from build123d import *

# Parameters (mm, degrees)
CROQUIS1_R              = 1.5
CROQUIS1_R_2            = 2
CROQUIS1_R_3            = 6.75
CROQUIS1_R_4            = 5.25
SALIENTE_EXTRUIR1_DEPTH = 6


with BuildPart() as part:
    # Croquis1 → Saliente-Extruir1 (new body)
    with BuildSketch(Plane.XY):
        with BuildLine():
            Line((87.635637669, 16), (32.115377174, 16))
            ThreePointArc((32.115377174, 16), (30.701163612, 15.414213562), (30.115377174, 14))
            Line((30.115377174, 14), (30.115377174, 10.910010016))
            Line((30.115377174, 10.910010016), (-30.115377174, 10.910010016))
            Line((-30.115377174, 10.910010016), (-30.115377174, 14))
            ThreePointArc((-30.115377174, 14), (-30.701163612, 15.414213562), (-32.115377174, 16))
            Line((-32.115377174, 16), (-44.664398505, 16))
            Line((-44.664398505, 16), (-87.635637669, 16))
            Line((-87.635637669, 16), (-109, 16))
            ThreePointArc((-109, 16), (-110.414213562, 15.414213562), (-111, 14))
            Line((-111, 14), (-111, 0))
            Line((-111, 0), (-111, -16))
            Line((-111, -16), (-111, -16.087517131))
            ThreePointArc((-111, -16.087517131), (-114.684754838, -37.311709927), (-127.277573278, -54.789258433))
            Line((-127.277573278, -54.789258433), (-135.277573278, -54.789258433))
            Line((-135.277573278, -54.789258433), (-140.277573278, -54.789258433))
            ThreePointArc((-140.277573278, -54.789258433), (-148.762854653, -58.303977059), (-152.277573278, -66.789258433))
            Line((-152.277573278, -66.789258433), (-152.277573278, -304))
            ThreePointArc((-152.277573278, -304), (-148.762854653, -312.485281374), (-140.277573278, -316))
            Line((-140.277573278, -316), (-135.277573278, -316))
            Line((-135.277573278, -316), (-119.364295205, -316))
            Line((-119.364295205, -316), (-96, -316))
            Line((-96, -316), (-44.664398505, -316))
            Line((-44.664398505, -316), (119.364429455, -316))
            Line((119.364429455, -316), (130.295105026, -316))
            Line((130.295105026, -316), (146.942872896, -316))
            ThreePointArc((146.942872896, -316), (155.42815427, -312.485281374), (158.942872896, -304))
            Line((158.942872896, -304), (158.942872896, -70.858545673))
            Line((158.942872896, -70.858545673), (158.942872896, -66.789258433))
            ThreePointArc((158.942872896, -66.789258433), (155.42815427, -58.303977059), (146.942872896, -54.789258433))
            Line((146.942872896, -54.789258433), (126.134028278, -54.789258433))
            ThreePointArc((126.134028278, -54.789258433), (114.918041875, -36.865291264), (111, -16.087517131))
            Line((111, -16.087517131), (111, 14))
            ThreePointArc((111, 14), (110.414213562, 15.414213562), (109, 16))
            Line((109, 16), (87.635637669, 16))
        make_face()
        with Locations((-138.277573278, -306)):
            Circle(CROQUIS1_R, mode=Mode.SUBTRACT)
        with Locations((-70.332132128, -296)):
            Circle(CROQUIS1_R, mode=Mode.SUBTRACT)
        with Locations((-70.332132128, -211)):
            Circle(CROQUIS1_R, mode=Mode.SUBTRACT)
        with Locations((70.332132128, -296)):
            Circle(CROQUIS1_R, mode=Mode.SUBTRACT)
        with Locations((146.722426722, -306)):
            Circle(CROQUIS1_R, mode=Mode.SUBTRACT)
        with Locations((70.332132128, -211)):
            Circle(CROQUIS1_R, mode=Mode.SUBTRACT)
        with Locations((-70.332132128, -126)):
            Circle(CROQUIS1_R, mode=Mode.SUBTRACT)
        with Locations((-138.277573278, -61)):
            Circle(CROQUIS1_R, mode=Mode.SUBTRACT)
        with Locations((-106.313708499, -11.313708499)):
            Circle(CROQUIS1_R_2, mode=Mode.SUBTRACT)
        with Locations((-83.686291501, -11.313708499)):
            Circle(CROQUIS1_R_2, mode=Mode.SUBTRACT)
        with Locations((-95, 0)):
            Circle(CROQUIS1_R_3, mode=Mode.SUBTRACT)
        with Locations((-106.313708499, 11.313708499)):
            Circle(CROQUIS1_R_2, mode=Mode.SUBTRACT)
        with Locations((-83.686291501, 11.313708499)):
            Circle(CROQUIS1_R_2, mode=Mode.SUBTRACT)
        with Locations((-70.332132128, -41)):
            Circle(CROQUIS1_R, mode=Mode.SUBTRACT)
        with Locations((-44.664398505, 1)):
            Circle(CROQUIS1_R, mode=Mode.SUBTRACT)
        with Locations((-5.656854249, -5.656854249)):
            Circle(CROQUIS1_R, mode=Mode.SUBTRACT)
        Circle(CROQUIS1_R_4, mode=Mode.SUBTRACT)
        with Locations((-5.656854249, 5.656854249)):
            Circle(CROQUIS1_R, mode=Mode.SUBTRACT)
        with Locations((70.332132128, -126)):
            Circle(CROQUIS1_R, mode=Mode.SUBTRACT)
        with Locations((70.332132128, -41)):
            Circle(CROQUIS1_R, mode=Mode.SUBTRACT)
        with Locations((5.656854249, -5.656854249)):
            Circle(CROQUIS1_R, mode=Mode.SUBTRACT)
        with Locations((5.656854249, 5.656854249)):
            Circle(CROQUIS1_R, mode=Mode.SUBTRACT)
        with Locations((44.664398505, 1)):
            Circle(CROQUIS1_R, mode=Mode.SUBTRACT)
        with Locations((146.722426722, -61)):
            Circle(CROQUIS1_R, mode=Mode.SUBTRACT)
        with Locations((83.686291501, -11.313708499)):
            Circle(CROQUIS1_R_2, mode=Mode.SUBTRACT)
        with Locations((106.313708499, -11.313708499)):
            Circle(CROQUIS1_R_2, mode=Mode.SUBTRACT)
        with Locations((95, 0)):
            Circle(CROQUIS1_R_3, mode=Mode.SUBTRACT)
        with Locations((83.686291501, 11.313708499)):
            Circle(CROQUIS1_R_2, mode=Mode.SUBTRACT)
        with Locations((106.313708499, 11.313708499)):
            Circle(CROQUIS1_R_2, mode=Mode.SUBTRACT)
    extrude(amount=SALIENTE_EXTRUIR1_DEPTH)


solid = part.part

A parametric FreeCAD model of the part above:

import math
import FreeCAD as App
import Part
import Sketcher
from FreeCAD import Vector

doc = App.newDocument("Part")
body = doc.addObject("PartDesign::Body", "Body")

sketch1 = doc.addObject("Sketcher::SketchObject", "Sketch")
body.addObject(sketch1)
sketch1.AttachmentSupport = (doc.XY_Plane, [""])
sketch1.MapMode = "FlatFace"
sketch1.addGeometry(Part.ArcOfCircle(Part.Circle(Vector(32.1, 14, 0), Vector(0, 0, 1), 2), math.radians(90), math.radians(180)), False)
sketch1.addGeometry(Part.LineSegment(Vector(30.1, 14, 0), Vector(30.1, 10.9, 0)), False)
sketch1.addGeometry(Part.LineSegment(Vector(30.1, 10.9, 0), Vector(-30.1, 10.9, 0)), False)
sketch1.addGeometry(Part.LineSegment(Vector(-30.1, 10.9, 0), Vector(-30.1, 14, 0)), False)
sketch1.addGeometry(Part.ArcOfCircle(Part.Circle(Vector(-32.1, 14, 0), Vector(0, 0, 1), 2), math.radians(0), math.radians(90)), False)
sketch1.addGeometry(Part.LineSegment(Vector(-32.1, 16, 0), Vector(-109, 16, 0)), False)
sketch1.addGeometry(Part.ArcOfCircle(Part.Circle(Vector(-109, 14, 0), Vector(0, 0, 1), 2), math.radians(90), math.radians(180)), False)
sketch1.addGeometry(Part.LineSegment(Vector(-111, 14, 0), Vector(-111, -16.1, 0)), False)
sketch1.addGeometry(Part.ArcOfCircle(Part.Circle(Vector(-158.9, -18.7, 0), Vector(0, 0, 1), 48), math.radians(-49), math.radians(3)), False)
sketch1.addGeometry(Part.LineSegment(Vector(-127.3, -54.8, 0), Vector(-140.3, -54.8, 0)), False)
sketch1.addGeometry(Part.ArcOfCircle(Part.Circle(Vector(-140.3, -66.8, 0), Vector(0, 0, 1), 12), math.radians(90), math.radians(180)), False)
sketch1.addGeometry(Part.LineSegment(Vector(-152.3, -66.8, 0), Vector(-152.3, -304, 0)), False)
sketch1.addGeometry(Part.ArcOfCircle(Part.Circle(Vector(-140.3, -304, 0), Vector(0, 0, 1), 12), math.radians(180), math.radians(270)), False)
sketch1.addGeometry(Part.LineSegment(Vector(-140.3, -316, 0), Vector(146.9, -316, 0)), False)
sketch1.addGeometry(Part.ArcOfCircle(Part.Circle(Vector(146.9, -304, 0), Vector(0, 0, 1), 12), math.radians(-90), math.radians(0)), False)
sketch1.addGeometry(Part.LineSegment(Vector(158.9, -304, 0), Vector(158.9, -66.8, 0)), False)
sketch1.addGeometry(Part.ArcOfCircle(Part.Circle(Vector(146.9, -66.8, 0), Vector(0, 0, 1), 12), math.radians(0), math.radians(90)), False)
sketch1.addGeometry(Part.LineSegment(Vector(146.9, -54.8, 0), Vector(126.1, -54.8, 0)), False)
sketch1.addGeometry(Part.ArcOfCircle(Part.Circle(Vector(168.1, -16.1, 0), Vector(0, 0, 1), 57.1), math.radians(-180), math.radians(-137)), False)
sketch1.addGeometry(Part.LineSegment(Vector(111, -16.1, 0), Vector(111, 14, 0)), False)
sketch1.addGeometry(Part.ArcOfCircle(Part.Circle(Vector(109, 14, 0), Vector(0, 0, 1), 2), math.radians(0), math.radians(90)), False)
sketch1.addGeometry(Part.LineSegment(Vector(109, 16, 0), Vector(32.1, 16, 0)), False)
sketch1.addGeometry(Part.Circle(Vector(-138.3, -306, 0), Vector(0, 0, 1), 1.5), False)
sketch1.addGeometry(Part.Circle(Vector(-70.3, -296, 0), Vector(0, 0, 1), 1.5), False)
sketch1.addGeometry(Part.Circle(Vector(-70.3, -211, 0), Vector(0, 0, 1), 1.5), False)
sketch1.addGeometry(Part.Circle(Vector(70.3, -296, 0), Vector(0, 0, 1), 1.5), False)
sketch1.addGeometry(Part.Circle(Vector(146.7, -306, 0), Vector(0, 0, 1), 1.5), False)
sketch1.addGeometry(Part.Circle(Vector(70.3, -211, 0), Vector(0, 0, 1), 1.5), False)
sketch1.addGeometry(Part.Circle(Vector(-70.3, -126, 0), Vector(0, 0, 1), 1.5), False)
sketch1.addGeometry(Part.Circle(Vector(-138.3, -61, 0), Vector(0, 0, 1), 1.5), False)
sketch1.addGeometry(Part.Circle(Vector(-70.3, -41, 0), Vector(0, 0, 1), 1.5), False)
sketch1.addGeometry(Part.Circle(Vector(-106.3, -11.3, 0), Vector(0, 0, 1), 2), False)
sketch1.addGeometry(Part.Circle(Vector(-106.3, 11.3, 0), Vector(0, 0, 1), 2), False)
sketch1.addGeometry(Part.Circle(Vector(-83.7, -11.3, 0), Vector(0, 0, 1), 2), False)
sketch1.addGeometry(Part.Circle(Vector(-95, 0, 0), Vector(0, 0, 1), 6.8), False)
sketch1.addGeometry(Part.Circle(Vector(-83.7, 11.3, 0), Vector(0, 0, 1), 2), False)
sketch1.addGeometry(Part.Circle(Vector(-44.7, 1, 0), Vector(0, 0, 1), 1.5), False)
sketch1.addGeometry(Part.Circle(Vector(-5.7, -5.7, 0), Vector(0, 0, 1), 1.5), False)
sketch1.addGeometry(Part.Circle(Vector(0, 0, 0), Vector(0, 0, 1), 5.2), False)
sketch1.addGeometry(Part.Circle(Vector(-5.7, 5.7, 0), Vector(0, 0, 1), 1.5), False)
sketch1.addGeometry(Part.Circle(Vector(70.3, -126, 0), Vector(0, 0, 1), 1.5), False)
sketch1.addGeometry(Part.Circle(Vector(70.3, -41, 0), Vector(0, 0, 1), 1.5), False)
sketch1.addGeometry(Part.Circle(Vector(5.7, -5.7, 0), Vector(0, 0, 1), 1.5), False)
sketch1.addGeometry(Part.Circle(Vector(5.7, 5.7, 0), Vector(0, 0, 1), 1.5), False)
sketch1.addGeometry(Part.Circle(Vector(44.7, 1, 0), Vector(0, 0, 1), 1.5), False)
sketch1.addGeometry(Part.Circle(Vector(146.7, -61, 0), Vector(0, 0, 1), 1.5), False)
sketch1.addGeometry(Part.Circle(Vector(83.7, -11.3, 0), Vector(0, 0, 1), 2), False)
sketch1.addGeometry(Part.Circle(Vector(106.3, -11.3, 0), Vector(0, 0, 1), 2), False)
sketch1.addGeometry(Part.Circle(Vector(83.7, 11.3, 0), Vector(0, 0, 1), 2), False)
sketch1.addGeometry(Part.Circle(Vector(95, 0, 0), Vector(0, 0, 1), 6.8), False)
sketch1.addGeometry(Part.Circle(Vector(106.3, 11.3, 0), Vector(0, 0, 1), 2), False)
sketch1.addConstraint(Sketcher.Constraint("Tangent", 0, 2, 1, 1))
sketch1.addConstraint(Sketcher.Constraint("Coincident", 1, 2, 2, 1))
sketch1.addConstraint(Sketcher.Constraint("Coincident", 2, 2, 3, 1))
sketch1.addConstraint(Sketcher.Constraint("Tangent", 3, 2, 4, 1))
sketch1.addConstraint(Sketcher.Constraint("Tangent", 4, 2, 5, 1))
sketch1.addConstraint(Sketcher.Constraint("Tangent", 5, 2, 6, 1))
sketch1.addConstraint(Sketcher.Constraint("Tangent", 6, 2, 7, 1))
sketch1.addConstraint(Sketcher.Constraint("Coincident", 7, 2, 8, 2))
sketch1.addConstraint(Sketcher.Constraint("Coincident", 8, 1, 9, 1))
sketch1.addConstraint(Sketcher.Constraint("Tangent", 9, 2, 10, 1))
sketch1.addConstraint(Sketcher.Constraint("Tangent", 10, 2, 11, 1))
sketch1.addConstraint(Sketcher.Constraint("Tangent", 11, 2, 12, 1))
sketch1.addConstraint(Sketcher.Constraint("Tangent", 12, 2, 13, 1))
sketch1.addConstraint(Sketcher.Constraint("Tangent", 13, 2, 14, 1))
sketch1.addConstraint(Sketcher.Constraint("Tangent", 14, 2, 15, 1))
sketch1.addConstraint(Sketcher.Constraint("Tangent", 15, 2, 16, 1))
sketch1.addConstraint(Sketcher.Constraint("Tangent", 16, 2, 17, 1))
sketch1.addConstraint(Sketcher.Constraint("Coincident", 17, 2, 18, 2))
sketch1.addConstraint(Sketcher.Constraint("Tangent", 18, 1, 19, 1))
sketch1.addConstraint(Sketcher.Constraint("Tangent", 19, 2, 20, 1))
sketch1.addConstraint(Sketcher.Constraint("Tangent", 20, 2, 21, 1))
sketch1.addConstraint(Sketcher.Constraint("Tangent", 21, 2, 0, 1))
sketch1.addConstraint(Sketcher.Constraint("Vertical", 1))
sketch1.addConstraint(Sketcher.Constraint("Horizontal", 2))
sketch1.addConstraint(Sketcher.Constraint("Vertical", 3))
sketch1.addConstraint(Sketcher.Constraint("Horizontal", 5))
sketch1.addConstraint(Sketcher.Constraint("Vertical", 7))
sketch1.addConstraint(Sketcher.Constraint("Horizontal", 9))
sketch1.addConstraint(Sketcher.Constraint("Vertical", 11))
sketch1.addConstraint(Sketcher.Constraint("Horizontal", 13))
sketch1.addConstraint(Sketcher.Constraint("Vertical", 15))
sketch1.addConstraint(Sketcher.Constraint("Horizontal", 17))
sketch1.addConstraint(Sketcher.Constraint("Vertical", 19))
sketch1.addConstraint(Sketcher.Constraint("Horizontal", 21))
sketch1.addConstraint(Sketcher.Constraint("Coincident", 38, 3, -1, 1))
sketch1.addConstraint(Sketcher.Constraint("Equal", 0, 4))
sketch1.addConstraint(Sketcher.Constraint("Equal", 4, 6))
sketch1.addConstraint(Sketcher.Constraint("Equal", 10, 12))
sketch1.addConstraint(Sketcher.Constraint("Equal", 12, 14))
sketch1.addConstraint(Sketcher.Constraint("Equal", 14, 16))
sketch1.addConstraint(Sketcher.Constraint("Equal", 6, 20))
sketch1.addConstraint(Sketcher.Constraint("Equal", 22, 23))
sketch1.addConstraint(Sketcher.Constraint("Equal", 23, 24))
sketch1.addConstraint(Sketcher.Constraint("Equal", 24, 25))
sketch1.addConstraint(Sketcher.Constraint("Equal", 25, 26))
sketch1.addConstraint(Sketcher.Constraint("Equal", 26, 27))
sketch1.addConstraint(Sketcher.Constraint("Equal", 27, 28))
sketch1.addConstraint(Sketcher.Constraint("Equal", 28, 29))
sketch1.addConstraint(Sketcher.Constraint("Equal", 29, 30))
sketch1.addConstraint(Sketcher.Constraint("Equal", 20, 31))
sketch1.addConstraint(Sketcher.Constraint("Equal", 31, 32))
sketch1.addConstraint(Sketcher.Constraint("Equal", 32, 33))
sketch1.addConstraint(Sketcher.Constraint("Equal", 33, 35))
sketch1.addConstraint(Sketcher.Constraint("Equal", 30, 36))
sketch1.addConstraint(Sketcher.Constraint("Equal", 36, 37))
sketch1.addConstraint(Sketcher.Constraint("Equal", 37, 39))
sketch1.addConstraint(Sketcher.Constraint("Equal", 39, 40))
sketch1.addConstraint(Sketcher.Constraint("Equal", 40, 41))
sketch1.addConstraint(Sketcher.Constraint("Equal", 41, 42))
sketch1.addConstraint(Sketcher.Constraint("Equal", 42, 43))
sketch1.addConstraint(Sketcher.Constraint("Equal", 43, 44))
sketch1.addConstraint(Sketcher.Constraint("Equal", 44, 45))
sketch1.addConstraint(Sketcher.Constraint("Equal", 35, 46))
sketch1.addConstraint(Sketcher.Constraint("Equal", 46, 47))
sketch1.addConstraint(Sketcher.Constraint("Equal", 47, 48))
sketch1.addConstraint(Sketcher.Constraint("Equal", 34, 49))
sketch1.addConstraint(Sketcher.Constraint("Equal", 48, 50))
sketch1.addConstraint(Sketcher.Constraint("Symmetric", 39, 3, 42, 3, -1, 1))
sketch1.addConstraint(Sketcher.Constraint("Symmetric", 37, 3, 43, 3, -1, 1))
sketch1.addConstraint(Sketcher.Constraint("Symmetric", 35, 3, 46, 3, -1, 1))
sketch1.addConstraint(Sketcher.Constraint("Symmetric", 32, 3, 47, 3, -1, 1))
sketch1.addConstraint(Sketcher.Constraint("Symmetric", 33, 3, 48, 3, -1, 1))
sketch1.addConstraint(Sketcher.Constraint("Symmetric", 34, 3, 49, 3, -1, 1))
sketch1.addConstraint(Sketcher.Constraint("Symmetric", 31, 3, 50, 3, -1, 1))
sketch1.addConstraint(Sketcher.Constraint("Symmetric", 0, 3, 4, 3, -2))
sketch1.addConstraint(Sketcher.Constraint("Symmetric", 23, 3, 25, 3, -2))
sketch1.addConstraint(Sketcher.Constraint("Symmetric", 24, 3, 27, 3, -2))
sketch1.addConstraint(Sketcher.Constraint("Symmetric", 28, 3, 40, 3, -2))
sketch1.addConstraint(Sketcher.Constraint("Symmetric", 30, 3, 41, 3, -2))
sketch1.addConstraint(Sketcher.Constraint("Symmetric", 37, 3, 42, 3, -2))
sketch1.addConstraint(Sketcher.Constraint("Symmetric", 36, 3, 44, 3, -2))
sketch1.addConstraint(Sketcher.Constraint("Symmetric", 33, 3, 46, 3, -2))
sketch1.addConstraint(Sketcher.Constraint("Symmetric", 31, 3, 47, 3, -2))
sketch1.addConstraint(Sketcher.Constraint("Symmetric", 7, 2, 18, 1, -2))
sketch1.addConstraint(Sketcher.Constraint("PointOnObject", 34, 3, -1))
sketch1.addConstraint(Sketcher.Constraint("Horizontal", 10, 3, 16, 3))
sketch1.addConstraint(Sketcher.Constraint("Horizontal", 22, 3, 26, 3))
sketch1.addConstraint(Sketcher.Constraint("Horizontal", 31, 3, 33, 3))
sketch1.addConstraint(Sketcher.Constraint("Horizontal", 29, 3, 45, 3))
sketch1.addConstraint(Sketcher.Constraint("Vertical", 23, 3, 24, 3))
sketch1.addConstraint(Sketcher.Constraint("Vertical", 24, 3, 28, 3))
sketch1.addConstraint(Sketcher.Constraint("Vertical", 22, 3, 29, 3))
sketch1.addConstraint(Sketcher.Constraint("Vertical", 28, 3, 30, 3))
sketch1.addConstraint(Sketcher.Constraint("Vertical", 26, 3, 45, 3))
sketch1.addConstraint(Sketcher.Constraint("Diameter", 22, 3.0))
sketch1.addConstraint(Sketcher.Constraint("Diameter", 31, 4.0))
sketch1.addConstraint(Sketcher.Constraint("Radius", 10, 12.0))
sketch1.addConstraint(Sketcher.Constraint("Diameter", 34, 13.5))
sketch1.addConstraint(Sketcher.Constraint("Diameter", 38, 10.5))
sketch1.addConstraint(Sketcher.Constraint("DistanceX", 9, 2, 9, 1, 13.0))
sketch1.addConstraint(Sketcher.Constraint("DistanceY", -1, 1, 0, 3, 14.0))
sketch1.addConstraint(Sketcher.Constraint("DistanceX", 6, 3, -1, 1, 109.0))
sketch1.addConstraint(Sketcher.Constraint("DistanceY", 12, 3, -1, 1, 304.0))
sketch1.addConstraint(Sketcher.Constraint("DistanceY", 22, 3, -1, 1, 306.0))
sketch1.addConstraint(Sketcher.Constraint("DistanceY", 23, 3, -1, 1, 296.0))
sketch1.addConstraint(Sketcher.Constraint("DistanceY", 24, 3, -1, 1, 211.0))
sketch1.addConstraint(Sketcher.Constraint("DistanceY", 28, 3, -1, 1, 126.0))
sketch1.addConstraint(Sketcher.Constraint("DistanceY", 29, 3, -1, 1, 61.0))
sketch1.addConstraint(Sketcher.Constraint("DistanceY", 30, 3, -1, 1, 41.0))
sketch1.addConstraint(Sketcher.Constraint("DistanceX", 34, 3, -1, 1, 95.0))
sketch1.addConstraint(Sketcher.Constraint("DistanceY", -1, 1, 36, 3, 1.0))
sketch1.addConstraint(Sketcher.Constraint("Radius", 8, 48.018278))
sketch1.addConstraint(Sketcher.Constraint("Radius", 18, 57.052345))
sketch1.addConstraint(Sketcher.Constraint("DistanceY", 1, 2, 1, 1, 3.08999))
sketch1.addConstraint(Sketcher.Constraint("DistanceY", 11, 2, 11, 1, 237.210742))
sketch1.addConstraint(Sketcher.Constraint("DistanceX", 36, 3, -1, 1, 44.664399))
sketch1.addConstraint(Sketcher.Constraint("DistanceX", 2, 2, 2, 1, 60.230754))
sketch1.addConstraint(Sketcher.Constraint("DistanceX", 13, 1, 13, 2, 287.220446))
sketch1.addConstraint(Sketcher.Constraint("DistanceX", 17, 2, 17, 1, 20.808845))
sketch1.addConstraint(Sketcher.Constraint("DistanceY", 7, 2, 7, 1, 30.087517))
sketch1.addConstraint(Sketcher.Constraint("DistanceX", 31, 3, -1, 1, 106.313708))
sketch1.addConstraint(Sketcher.Constraint("DistanceY", 31, 3, -1, 1, 11.313708))
sketch1.addConstraint(Sketcher.Constraint("DistanceX", 33, 3, -1, 1, 83.686292))
sketch1.addConstraint(Sketcher.Constraint("DistanceX", 22, 3, -1, 1, 138.277573))
sketch1.addConstraint(Sketcher.Constraint("DistanceX", 23, 3, -1, 1, 70.332132))
sketch1.addConstraint(Sketcher.Constraint("DistanceX", -1, 1, 26, 3, 146.722427))
sketch1.addConstraint(Sketcher.Constraint("DistanceX", 37, 3, -1, 1, 5.656854))
sketch1.addConstraint(Sketcher.Constraint("DistanceY", 37, 3, -1, 1, 5.656854))
pad1 = doc.addObject("PartDesign::Pad", "Pad")
body.addObject(pad1)
pad1.Profile = sketch1
pad1.Length = 6

doc.recompute()
